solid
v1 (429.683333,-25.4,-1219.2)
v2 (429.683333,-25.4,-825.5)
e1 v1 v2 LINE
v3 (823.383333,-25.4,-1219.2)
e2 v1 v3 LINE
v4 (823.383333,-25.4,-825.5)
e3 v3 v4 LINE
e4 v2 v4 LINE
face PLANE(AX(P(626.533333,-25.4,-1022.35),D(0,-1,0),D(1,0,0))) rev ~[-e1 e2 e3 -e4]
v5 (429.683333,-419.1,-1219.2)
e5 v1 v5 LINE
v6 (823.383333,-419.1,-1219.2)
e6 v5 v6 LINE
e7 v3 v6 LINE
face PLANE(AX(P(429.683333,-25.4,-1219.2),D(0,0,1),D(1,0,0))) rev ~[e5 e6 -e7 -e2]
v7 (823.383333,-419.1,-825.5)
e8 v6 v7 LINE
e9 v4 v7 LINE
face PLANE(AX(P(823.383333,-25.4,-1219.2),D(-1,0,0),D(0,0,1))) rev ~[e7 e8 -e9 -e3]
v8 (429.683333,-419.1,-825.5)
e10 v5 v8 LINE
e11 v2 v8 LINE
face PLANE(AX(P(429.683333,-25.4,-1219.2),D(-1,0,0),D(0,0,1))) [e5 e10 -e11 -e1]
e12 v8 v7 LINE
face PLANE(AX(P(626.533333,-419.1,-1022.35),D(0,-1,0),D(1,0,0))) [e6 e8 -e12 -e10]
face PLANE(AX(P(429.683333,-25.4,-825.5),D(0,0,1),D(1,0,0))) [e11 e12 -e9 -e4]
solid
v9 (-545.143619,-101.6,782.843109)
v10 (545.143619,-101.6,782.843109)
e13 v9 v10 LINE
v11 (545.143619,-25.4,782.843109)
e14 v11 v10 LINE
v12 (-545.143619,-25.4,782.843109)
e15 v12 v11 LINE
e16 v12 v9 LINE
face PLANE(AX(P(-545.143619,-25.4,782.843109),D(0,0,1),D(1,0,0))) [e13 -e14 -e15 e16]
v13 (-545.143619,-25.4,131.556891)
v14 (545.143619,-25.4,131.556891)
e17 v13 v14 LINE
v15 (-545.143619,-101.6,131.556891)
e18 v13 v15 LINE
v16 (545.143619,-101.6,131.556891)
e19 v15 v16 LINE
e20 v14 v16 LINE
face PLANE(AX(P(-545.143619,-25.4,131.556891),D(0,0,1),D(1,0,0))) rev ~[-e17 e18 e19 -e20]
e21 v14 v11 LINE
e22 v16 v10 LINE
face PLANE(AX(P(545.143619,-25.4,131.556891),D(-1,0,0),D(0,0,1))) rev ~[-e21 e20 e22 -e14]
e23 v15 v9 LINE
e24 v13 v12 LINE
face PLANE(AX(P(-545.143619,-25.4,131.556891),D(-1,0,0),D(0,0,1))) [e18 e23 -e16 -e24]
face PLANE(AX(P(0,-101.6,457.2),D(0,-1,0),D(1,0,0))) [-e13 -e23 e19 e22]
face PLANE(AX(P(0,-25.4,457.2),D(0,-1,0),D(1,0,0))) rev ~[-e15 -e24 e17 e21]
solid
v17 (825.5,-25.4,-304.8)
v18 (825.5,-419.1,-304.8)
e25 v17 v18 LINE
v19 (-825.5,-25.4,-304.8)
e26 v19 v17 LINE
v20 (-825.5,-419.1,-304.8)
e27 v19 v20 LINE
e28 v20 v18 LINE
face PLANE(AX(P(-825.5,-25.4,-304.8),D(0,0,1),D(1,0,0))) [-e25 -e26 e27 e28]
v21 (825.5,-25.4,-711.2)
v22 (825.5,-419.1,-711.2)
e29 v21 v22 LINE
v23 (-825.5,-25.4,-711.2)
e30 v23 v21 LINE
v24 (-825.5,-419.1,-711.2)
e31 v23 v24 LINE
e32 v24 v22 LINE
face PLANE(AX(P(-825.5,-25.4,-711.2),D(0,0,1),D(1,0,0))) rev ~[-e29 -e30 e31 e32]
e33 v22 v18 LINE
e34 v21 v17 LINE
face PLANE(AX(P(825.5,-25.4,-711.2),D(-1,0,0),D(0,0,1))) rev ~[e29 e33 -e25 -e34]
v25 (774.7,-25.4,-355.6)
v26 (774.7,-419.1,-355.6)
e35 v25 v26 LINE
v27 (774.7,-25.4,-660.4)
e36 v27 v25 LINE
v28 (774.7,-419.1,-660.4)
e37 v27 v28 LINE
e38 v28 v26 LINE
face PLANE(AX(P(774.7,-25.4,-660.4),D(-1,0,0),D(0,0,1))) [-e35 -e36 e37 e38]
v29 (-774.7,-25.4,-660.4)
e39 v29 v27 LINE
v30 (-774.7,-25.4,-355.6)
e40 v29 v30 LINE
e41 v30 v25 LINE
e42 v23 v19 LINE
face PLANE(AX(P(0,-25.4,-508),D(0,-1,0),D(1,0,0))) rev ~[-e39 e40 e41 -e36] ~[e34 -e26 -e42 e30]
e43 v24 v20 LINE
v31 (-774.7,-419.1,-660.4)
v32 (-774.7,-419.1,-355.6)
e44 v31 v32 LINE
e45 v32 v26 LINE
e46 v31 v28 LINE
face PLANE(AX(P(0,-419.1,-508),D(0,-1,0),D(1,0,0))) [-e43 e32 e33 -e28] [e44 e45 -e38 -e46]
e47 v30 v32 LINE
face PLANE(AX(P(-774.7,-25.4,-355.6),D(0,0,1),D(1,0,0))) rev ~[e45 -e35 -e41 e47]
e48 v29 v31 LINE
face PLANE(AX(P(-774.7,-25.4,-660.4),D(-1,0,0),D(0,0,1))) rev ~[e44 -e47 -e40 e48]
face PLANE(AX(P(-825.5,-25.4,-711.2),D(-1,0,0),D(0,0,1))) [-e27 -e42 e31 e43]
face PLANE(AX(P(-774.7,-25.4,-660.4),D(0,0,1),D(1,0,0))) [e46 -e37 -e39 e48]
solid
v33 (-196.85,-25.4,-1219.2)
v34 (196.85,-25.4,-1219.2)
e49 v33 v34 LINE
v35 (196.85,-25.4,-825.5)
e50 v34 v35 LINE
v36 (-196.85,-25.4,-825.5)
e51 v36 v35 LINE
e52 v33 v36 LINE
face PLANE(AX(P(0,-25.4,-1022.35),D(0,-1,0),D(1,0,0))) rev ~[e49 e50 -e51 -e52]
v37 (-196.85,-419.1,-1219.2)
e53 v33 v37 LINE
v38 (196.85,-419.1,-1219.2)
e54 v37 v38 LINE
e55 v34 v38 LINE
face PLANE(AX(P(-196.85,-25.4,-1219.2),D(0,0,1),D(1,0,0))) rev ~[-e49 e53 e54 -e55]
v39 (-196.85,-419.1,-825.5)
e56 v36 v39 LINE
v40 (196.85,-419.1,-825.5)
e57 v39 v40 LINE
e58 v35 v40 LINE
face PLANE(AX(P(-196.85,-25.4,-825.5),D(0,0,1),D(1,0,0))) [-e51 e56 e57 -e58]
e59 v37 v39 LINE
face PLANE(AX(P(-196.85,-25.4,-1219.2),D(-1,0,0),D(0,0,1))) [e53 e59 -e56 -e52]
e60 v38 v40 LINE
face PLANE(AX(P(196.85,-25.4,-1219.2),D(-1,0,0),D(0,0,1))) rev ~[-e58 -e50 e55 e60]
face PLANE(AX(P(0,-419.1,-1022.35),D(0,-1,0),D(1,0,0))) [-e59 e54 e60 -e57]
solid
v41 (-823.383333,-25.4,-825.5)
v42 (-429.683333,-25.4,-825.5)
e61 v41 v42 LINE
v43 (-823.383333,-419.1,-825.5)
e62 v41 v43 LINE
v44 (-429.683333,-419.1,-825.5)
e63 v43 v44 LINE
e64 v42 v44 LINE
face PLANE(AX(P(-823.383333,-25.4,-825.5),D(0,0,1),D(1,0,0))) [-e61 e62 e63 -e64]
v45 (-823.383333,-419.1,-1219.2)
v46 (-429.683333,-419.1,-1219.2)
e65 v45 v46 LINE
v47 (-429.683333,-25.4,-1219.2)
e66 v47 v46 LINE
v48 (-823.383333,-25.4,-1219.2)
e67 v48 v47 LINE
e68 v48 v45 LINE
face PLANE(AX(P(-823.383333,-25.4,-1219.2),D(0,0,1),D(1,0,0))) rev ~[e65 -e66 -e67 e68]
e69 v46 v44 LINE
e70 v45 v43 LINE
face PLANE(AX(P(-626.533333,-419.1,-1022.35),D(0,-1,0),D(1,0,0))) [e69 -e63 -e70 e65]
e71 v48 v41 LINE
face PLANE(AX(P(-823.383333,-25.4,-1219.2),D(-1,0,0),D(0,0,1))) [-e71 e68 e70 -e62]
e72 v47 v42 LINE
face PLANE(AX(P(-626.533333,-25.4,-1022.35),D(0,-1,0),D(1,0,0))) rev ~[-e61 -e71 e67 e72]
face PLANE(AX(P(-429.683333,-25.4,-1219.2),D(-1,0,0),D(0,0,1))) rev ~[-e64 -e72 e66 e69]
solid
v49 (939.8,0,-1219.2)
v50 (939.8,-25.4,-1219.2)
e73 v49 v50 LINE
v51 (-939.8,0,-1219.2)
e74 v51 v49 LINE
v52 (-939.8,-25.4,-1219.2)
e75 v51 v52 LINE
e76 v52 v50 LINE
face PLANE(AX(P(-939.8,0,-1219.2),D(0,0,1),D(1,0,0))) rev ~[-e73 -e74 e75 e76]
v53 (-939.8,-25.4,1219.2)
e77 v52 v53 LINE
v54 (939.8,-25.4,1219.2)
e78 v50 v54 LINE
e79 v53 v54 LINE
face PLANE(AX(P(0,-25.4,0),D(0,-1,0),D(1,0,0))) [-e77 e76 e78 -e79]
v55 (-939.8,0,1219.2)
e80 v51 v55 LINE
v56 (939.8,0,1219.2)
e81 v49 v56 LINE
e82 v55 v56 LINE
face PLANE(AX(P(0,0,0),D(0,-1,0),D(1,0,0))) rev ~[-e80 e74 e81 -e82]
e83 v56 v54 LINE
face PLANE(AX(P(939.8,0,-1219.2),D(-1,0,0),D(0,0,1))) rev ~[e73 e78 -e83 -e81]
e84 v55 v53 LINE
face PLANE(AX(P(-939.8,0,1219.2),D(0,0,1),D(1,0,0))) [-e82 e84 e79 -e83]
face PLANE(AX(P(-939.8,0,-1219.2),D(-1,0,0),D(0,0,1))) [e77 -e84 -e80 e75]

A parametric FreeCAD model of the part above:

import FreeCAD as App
import Part
import Sketcher
Q = App.Units.Quantity


def add_polygon(sketch, points):
    """Adds a closed chain of lines whose ends are joined by coincident constraints."""
    first, n = sketch.GeometryCount, len(points)
    for a, b in zip(points, points[1:] + points[:1]):
        sketch.addGeometry(Part.LineSegment(App.Vector(*a, 0), App.Vector(*b, 0)), False)
    for i in range(n):
        sketch.addConstraint(Sketcher.Constraint("Coincident", first + i, 2, first + (i + 1) % n, 1))

doc = App.newDocument("Part")
params = doc.addObject("Spreadsheet::Sheet", "Params")
for row, (alias, value) in enumerate([
    ("sketch1_width", "74 in"),
    ("sketch1_height", "96 in"),
    ("pad1_length", "1 in"),
    ("pad2_length", "3 in"),
    ("sketch3_width", "15.5 in"),
    ("pad3_length", "15.5 in"),
    ("sketch4_width", "15.5 in"),
    ("pad4_length", "15.5 in"),
    ("sketch5_width", "15.5 in"),
    ("pad5_length", "15.5 in"),
    ("sketch6_width", "65 in"),
    ("sketch6_width2", "61 in"),
    ("sketch6_height", "16 in"),
    ("sketch6_height2", "12 in"),
    ("pad6_length", "15.5 in"),
], start=1):
    params.set(f"A{row}", alias)
    params.set(f"B{row}", "=" + value)
    params.setAlias(f"B{row}", alias)

body = doc.addObject("PartDesign::Body", "Body")

sketch1 = doc.addObject("Sketcher::SketchObject", "Sketch")
body.addObject(sketch1)
sketch1.AttachmentSupport = (doc.XZ_Plane, [""])
sketch1.MapMode = "FlatFace"
add_polygon(sketch1, [(-940, 1219), (-940, -1219), (940, -1219), (940, 1219)])
sketch1.addConstraint([
    Sketcher.Constraint("Vertical", 0),
    Sketcher.Constraint("Horizontal", 1),
    Sketcher.Constraint("Vertical", 2),
    Sketcher.Constraint("Horizontal", 3),
    Sketcher.Constraint("Symmetric", 0, 2, 2, 2, -1, 1),
    Sketcher.Constraint("DistanceX", 1, 1, 1, 2, Q("74 in")),
    Sketcher.Constraint("DistanceY", 0, 2, 0, 1, Q("96 in")),
])
sketch1.setExpression("Constraints[9]", "Params.sketch1_width")
sketch1.setExpression("Constraints[10]", "Params.sketch1_height")
pad1 = doc.addObject("PartDesign::Pad", "Pad")
body.addObject(pad1)
pad1.Profile = sketch1
pad1.setExpression("Length", "Params.pad1_length")
body2 = doc.addObject("PartDesign::Body", "Body001")

sketch2 = doc.addObject("Sketcher::SketchObject", "Sketch001")
body2.addObject(sketch2)
sketch2.AttachmentSupport = (doc.getObject("XZ_Plane001"), [""])
sketch2.MapMode = "FlatFace"
sketch2.AttachmentOffset = App.Placement(App.Vector(0, 0, 1 * 25.4), App.Rotation())
add_polygon(sketch2, [(-545, 783), (-545, 132), (545, 132), (545, 783)])
sketch2.addConstraint([
    Sketcher.Constraint("Vertical", 0),
    Sketcher.Constraint("Horizontal", 1),
    Sketcher.Constraint("Vertical", 2),
    Sketcher.Constraint("Horizontal", 3),
    Sketcher.Constraint("DistanceX", 1, 1, 1, 2, 1090.287239),
    Sketcher.Constraint("DistanceY", 0, 2, 0, 1, 651.286217),
    Sketcher.Constraint("DistanceX", 0, 2, -1, 1, 545.143619),
    Sketcher.Constraint("DistanceY", -1, 1, 0, 2, 131.556891),
])
pad2 = doc.addObject("PartDesign::Pad", "Pad001")
body2.addObject(pad2)
pad2.Profile = sketch2
pad2.setExpression("Length", "Params.pad2_length")
body3 = doc.addObject("PartDesign::Body", "Body002")

sketch3 = doc.addObject("Sketcher::SketchObject", "Sketch002")
body3.addObject(sketch3)
sketch3.AttachmentSupport = (doc.getObject("XZ_Plane002"), [""])
sketch3.MapMode = "FlatFace"
sketch3.AttachmentOffset = App.Placement(App.Vector(0, 0, 1 * 25.4), App.Rotation())
add_polygon(sketch3, [(-823, -826), (-823, -1219), (-430, -1219), (-430, -826)])
sketch3.addConstraint([
    Sketcher.Constraint("Vertical", 0),
    Sketcher.Constraint("Horizontal", 1),
    Sketcher.Constraint("Vertical", 2),
    Sketcher.Constraint("Horizontal", 3),
    Sketcher.Constraint("Equal", 3, 0),
    Sketcher.Constraint("DistanceX", 1, 1, 1, 2, Q("15.5 in")),
    Sketcher.Constraint("DistanceY", 0, 2, -1, 1, Q("48 in")),
    Sketcher.Constraint("DistanceX", 0, 2, -1, 1, 823.383333),
])
sketch3.setExpression("Constraints[9]", "Params.sketch3_width")
pad3 = doc.addObject("PartDesign::Pad", "Pad002")
body3.addObject(pad3)
pad3.Profile = sketch3
pad3.setExpression("Length", "Params.pad3_length")
body4 = doc.addObject("PartDesign::Body", "Body003")

sketch4 = doc.addObject("Sketcher::SketchObject", "Sketch003")
body4.addObject(sketch4)
sketch4.AttachmentSupport = (doc.getObject("XZ_Plane003"), [""])
sketch4.MapMode = "FlatFace"
sketch4.AttachmentOffset = App.Placement(App.Vector(0, 0, 1 * 25.4), App.Rotation())
add_polygon(sketch4, [(-197, -826), (-197, -1219), (197, -1219), (197, -826)])
sketch4.addConstraint([
    Sketcher.Constraint("Vertical", 0),
    Sketcher.Constraint("Horizontal", 1),
    Sketcher.Constraint("Vertical", 2),
    Sketcher.Constraint("Horizontal", 3),
    Sketcher.Constraint("Equal", 3, 0),
    Sketcher.Constraint("DistanceX", 1, 1, 1, 2, Q("15.5 in")),
    Sketcher.Constraint("DistanceY", 0, 2, -1, 1, Q("48 in")),
    Sketcher.Constraint("DistanceX", 0, 2, -1, 1, Q("7.75 in")),
])
sketch4.setExpression("Constraints[9]", "Params.sketch4_width")
pad4 = doc.addObject("PartDesign::Pad", "Pad003")
body4.addObject(pad4)
pad4.Profile = sketch4
pad4.setExpression("Length", "Params.pad4_length")
body5 = doc.addObject("PartDesign::Body", "Body004")

sketch5 = doc.addObject("Sketcher::SketchObject", "Sketch004")
body5.addObject(sketch5)
sketch5.AttachmentSupport = (doc.getObject("XZ_Plane004"), [""])
sketch5.MapMode = "FlatFace"
sketch5.AttachmentOffset = App.Placement(App.Vector(0, 0, 1 * 25.4), App.Rotation())
add_polygon(sketch5, [(430, -826), (430, -1219), (823, -1219), (823, -826)])
sketch5.addConstraint([
    Sketcher.Constraint("Vertical", 0),
    Sketcher.Constraint("Horizontal", 1),
    Sketcher.Constraint("Vertical", 2),
    Sketcher.Constraint("Horizontal", 3),
    Sketcher.Constraint("Equal", 3, 0),
    Sketcher.Constraint("DistanceX", 1, 1, 1, 2, Q("15.5 in")),
    Sketcher.Constraint("DistanceY", 0, 2, -1, 1, Q("48 in")),
    Sketcher.Constraint("DistanceX", -1, 1, 0, 2, 429.683333),
])
sketch5.setExpression("Constraints[9]", "Params.sketch5_width")
pad5 = doc.addObject("PartDesign::Pad", "Pad004")
body5.addObject(pad5)
pad5.Profile = sketch5
pad5.setExpression("Length", "Params.pad5_length")
body6 = doc.addObject("PartDesign::Body", "Body005")

sketch6 = doc.addObject("Sketcher::SketchObject", "Sketch005")
body6.addObject(sketch6)
sketch6.AttachmentSupport = (doc.getObject("XZ_Plane005"), [""])
sketch6.MapMode = "FlatFace"
sketch6.AttachmentOffset = App.Placement(App.Vector(0, 0, 1 * 25.4), App.Rotation())
add_polygon(sketch6, [(-826, -305), (-826, -711), (826, -711), (826, -305)])
add_polygon(sketch6, [(775, -660), (-775, -660), (-775, -356), (775, -356)])
sketch6.addConstraint([
    Sketcher.Constraint("Vertical", 0),
    Sketcher.Constraint("Horizontal", 1),
    Sketcher.Constraint("Vertical", 2),
    Sketcher.Constraint("Horizontal", 3),
    Sketcher.Constraint("Horizontal", 4),
    Sketcher.Constraint("Vertical", 5),
    Sketcher.Constraint("Horizontal", 6),
    Sketcher.Constraint("Vertical", 7),
    Sketcher.Constraint("DistanceX", 1, 1, 1, 2, Q("65 in")),
    Sketcher.Constraint("DistanceX", 4, 2, 4, 1, Q("61 in")),
    Sketcher.Constraint("DistanceY", 0, 2, 0, 1, Q("16 in")),
    Sketcher.Constraint("DistanceY", 5, 1, 5, 2, Q("12 in")),
    Sketcher.Constraint("DistanceY", 0, 2, -1, 1, Q("28 in")),
    Sketcher.Constraint("DistanceY", 4, 2, -1, 1, Q("26 in")),
    Sketcher.Constraint("DistanceX", 0, 2, 4, 2, Q("2 in")),
    Sketcher.Constraint("DistanceX", 0, 2, -1, 1, Q("32.5 in")),
])
sketch6.setExpression("Constraints[16]", "Params.sketch6_width")
sketch6.setExpression("Constraints[17]", "Params.sketch6_width2")
sketch6.setExpression("Constraints[18]", "Params.sketch6_height")
sketch6.setExpression("Constraints[19]", "Params.sketch6_height2")
pad6 = doc.addObject("PartDesign::Pad", "Pad005")
body6.addObject(pad6)
pad6.Profile = sketch6
pad6.setExpression("Length", "Params.pad6_length")

doc.recompute()
